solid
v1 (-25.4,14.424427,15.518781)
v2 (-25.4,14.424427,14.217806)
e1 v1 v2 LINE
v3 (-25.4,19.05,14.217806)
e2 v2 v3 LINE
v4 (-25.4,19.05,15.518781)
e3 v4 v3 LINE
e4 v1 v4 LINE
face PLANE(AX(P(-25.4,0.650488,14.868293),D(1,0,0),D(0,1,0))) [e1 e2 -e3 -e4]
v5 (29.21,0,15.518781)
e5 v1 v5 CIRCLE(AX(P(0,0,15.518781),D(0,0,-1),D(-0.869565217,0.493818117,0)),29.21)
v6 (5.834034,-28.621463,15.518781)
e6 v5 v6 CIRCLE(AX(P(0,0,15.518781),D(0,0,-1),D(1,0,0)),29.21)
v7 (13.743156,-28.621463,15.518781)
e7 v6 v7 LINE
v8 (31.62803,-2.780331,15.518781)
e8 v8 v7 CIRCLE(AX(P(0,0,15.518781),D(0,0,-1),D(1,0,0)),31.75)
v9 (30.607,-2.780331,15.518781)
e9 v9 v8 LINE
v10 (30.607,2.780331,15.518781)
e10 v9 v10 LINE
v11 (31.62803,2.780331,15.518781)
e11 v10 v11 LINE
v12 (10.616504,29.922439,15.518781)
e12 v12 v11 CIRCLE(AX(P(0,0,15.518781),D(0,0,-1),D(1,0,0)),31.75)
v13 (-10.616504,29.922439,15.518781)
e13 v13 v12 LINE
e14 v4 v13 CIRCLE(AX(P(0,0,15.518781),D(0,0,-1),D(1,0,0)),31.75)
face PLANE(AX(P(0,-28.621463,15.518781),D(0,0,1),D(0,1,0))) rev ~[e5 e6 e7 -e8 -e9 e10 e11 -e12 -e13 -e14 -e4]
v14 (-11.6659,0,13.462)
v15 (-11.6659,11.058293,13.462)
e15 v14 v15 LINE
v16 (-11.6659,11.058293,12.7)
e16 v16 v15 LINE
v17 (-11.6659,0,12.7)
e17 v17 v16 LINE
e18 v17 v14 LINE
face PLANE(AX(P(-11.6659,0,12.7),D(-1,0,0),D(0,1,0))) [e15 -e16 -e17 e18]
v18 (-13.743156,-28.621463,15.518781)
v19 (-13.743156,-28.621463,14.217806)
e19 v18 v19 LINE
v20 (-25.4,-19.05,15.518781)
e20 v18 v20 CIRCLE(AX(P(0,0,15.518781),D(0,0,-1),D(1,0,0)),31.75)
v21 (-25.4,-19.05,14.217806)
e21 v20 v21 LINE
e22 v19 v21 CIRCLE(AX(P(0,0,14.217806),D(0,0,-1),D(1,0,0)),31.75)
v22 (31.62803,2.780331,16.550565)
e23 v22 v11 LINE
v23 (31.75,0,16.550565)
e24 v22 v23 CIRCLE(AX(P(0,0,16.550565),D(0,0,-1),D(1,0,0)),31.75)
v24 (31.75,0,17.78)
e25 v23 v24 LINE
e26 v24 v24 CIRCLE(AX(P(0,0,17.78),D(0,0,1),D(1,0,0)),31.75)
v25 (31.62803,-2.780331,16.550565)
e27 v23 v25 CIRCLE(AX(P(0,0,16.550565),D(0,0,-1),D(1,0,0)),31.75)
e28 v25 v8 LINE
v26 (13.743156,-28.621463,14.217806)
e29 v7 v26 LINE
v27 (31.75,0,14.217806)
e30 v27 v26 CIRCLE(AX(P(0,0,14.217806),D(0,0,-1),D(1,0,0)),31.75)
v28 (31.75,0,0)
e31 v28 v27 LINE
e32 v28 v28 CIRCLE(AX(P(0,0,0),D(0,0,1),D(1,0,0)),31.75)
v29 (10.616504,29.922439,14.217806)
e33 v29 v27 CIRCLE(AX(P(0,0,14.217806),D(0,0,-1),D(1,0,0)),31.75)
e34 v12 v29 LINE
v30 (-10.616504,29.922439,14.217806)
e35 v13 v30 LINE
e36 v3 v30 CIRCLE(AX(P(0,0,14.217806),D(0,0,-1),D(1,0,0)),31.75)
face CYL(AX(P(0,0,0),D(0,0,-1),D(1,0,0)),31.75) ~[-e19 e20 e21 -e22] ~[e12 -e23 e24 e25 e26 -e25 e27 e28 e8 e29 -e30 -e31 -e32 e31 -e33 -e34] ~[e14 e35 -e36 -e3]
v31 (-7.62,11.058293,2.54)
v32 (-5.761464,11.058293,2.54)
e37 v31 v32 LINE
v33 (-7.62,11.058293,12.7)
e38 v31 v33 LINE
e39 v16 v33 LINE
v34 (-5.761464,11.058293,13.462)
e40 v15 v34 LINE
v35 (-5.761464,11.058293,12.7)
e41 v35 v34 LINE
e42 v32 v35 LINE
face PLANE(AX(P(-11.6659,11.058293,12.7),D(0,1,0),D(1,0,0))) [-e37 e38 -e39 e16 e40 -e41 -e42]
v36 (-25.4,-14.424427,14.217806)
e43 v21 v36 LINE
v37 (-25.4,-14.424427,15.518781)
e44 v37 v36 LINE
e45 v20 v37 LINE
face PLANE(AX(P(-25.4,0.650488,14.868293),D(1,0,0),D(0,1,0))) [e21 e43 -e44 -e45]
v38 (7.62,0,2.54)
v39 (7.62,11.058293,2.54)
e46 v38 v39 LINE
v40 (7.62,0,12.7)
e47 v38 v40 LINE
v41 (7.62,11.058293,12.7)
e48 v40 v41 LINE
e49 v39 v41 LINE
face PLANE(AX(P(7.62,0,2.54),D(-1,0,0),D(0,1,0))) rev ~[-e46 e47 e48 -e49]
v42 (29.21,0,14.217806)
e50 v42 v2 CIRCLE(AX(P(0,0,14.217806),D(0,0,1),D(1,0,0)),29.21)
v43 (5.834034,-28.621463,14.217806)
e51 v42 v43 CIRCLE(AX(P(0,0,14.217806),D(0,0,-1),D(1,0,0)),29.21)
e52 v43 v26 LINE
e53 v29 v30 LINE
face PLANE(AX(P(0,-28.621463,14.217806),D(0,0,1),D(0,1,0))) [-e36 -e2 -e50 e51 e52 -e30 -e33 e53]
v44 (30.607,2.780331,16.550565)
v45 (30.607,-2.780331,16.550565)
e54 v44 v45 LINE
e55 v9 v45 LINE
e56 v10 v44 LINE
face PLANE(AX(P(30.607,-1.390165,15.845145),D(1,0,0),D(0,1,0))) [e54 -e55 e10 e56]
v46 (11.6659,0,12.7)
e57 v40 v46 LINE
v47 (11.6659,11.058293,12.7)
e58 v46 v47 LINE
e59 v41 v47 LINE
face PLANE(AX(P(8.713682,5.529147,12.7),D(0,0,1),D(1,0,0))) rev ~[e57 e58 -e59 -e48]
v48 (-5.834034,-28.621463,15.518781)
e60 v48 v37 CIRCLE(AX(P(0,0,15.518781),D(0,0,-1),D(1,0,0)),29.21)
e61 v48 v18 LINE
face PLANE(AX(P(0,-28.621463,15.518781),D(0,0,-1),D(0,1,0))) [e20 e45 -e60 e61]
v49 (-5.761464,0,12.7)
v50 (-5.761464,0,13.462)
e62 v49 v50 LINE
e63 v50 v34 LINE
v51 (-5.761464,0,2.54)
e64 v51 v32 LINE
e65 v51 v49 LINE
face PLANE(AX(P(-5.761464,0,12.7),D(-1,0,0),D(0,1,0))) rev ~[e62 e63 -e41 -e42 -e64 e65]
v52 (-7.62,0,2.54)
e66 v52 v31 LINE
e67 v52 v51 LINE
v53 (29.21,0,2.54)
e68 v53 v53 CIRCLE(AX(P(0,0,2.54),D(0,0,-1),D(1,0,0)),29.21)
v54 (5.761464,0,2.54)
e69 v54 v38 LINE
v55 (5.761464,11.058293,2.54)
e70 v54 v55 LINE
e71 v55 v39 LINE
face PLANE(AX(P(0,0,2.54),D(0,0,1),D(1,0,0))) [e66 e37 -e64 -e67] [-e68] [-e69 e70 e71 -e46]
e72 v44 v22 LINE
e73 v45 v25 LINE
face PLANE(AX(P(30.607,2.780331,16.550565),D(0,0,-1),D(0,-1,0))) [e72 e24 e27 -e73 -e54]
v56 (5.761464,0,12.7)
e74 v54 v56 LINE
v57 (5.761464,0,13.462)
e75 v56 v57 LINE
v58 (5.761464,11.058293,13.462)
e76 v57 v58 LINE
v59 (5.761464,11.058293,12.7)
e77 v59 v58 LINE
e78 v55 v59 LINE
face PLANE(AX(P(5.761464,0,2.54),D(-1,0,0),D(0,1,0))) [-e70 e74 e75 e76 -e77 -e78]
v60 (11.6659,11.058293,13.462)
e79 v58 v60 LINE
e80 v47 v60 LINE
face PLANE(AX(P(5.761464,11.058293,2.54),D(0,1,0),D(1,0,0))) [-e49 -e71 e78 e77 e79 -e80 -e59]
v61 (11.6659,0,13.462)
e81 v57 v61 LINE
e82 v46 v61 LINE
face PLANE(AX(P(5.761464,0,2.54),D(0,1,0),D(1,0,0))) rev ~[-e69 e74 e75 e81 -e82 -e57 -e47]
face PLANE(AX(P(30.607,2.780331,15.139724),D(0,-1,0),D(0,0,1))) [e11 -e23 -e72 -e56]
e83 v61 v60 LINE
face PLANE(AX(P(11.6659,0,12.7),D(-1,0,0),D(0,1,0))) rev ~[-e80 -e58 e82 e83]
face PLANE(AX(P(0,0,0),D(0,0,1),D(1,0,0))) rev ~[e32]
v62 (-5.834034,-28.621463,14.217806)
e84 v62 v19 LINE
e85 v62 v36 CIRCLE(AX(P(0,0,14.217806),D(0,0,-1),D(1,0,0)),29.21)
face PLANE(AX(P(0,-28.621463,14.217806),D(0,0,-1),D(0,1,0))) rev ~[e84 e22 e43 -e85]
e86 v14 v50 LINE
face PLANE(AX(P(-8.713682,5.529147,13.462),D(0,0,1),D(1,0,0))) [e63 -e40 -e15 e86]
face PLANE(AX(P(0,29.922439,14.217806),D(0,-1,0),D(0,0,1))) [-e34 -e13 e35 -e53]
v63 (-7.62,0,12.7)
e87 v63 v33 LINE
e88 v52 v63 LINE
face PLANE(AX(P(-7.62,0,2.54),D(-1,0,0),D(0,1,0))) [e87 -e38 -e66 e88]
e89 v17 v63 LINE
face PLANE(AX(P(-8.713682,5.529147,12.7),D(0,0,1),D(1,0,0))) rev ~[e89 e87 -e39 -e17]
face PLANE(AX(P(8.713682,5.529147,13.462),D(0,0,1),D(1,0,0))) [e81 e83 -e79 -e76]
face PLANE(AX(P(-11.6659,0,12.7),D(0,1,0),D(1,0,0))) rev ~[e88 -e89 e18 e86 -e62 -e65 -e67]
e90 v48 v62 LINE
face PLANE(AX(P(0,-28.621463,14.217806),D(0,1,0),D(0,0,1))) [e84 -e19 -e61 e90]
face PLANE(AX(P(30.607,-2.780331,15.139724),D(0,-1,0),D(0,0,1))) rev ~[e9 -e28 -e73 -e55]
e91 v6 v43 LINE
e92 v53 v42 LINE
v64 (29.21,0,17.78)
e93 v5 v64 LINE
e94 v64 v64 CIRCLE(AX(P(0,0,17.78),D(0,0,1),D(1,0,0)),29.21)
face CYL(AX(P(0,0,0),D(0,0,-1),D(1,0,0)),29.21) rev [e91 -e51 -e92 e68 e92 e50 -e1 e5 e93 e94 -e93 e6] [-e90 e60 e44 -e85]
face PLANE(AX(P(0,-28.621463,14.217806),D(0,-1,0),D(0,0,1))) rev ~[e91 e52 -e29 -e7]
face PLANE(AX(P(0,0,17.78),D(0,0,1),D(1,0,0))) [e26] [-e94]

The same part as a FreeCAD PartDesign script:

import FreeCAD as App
import Part
import Sketcher

V = App.Vector
Q = App.Units.Quantity


def faces_at(feature, points):
    """Names of the faces that lie closest to the given points."""
    faces = feature.Shape.Faces
    near = lambda p: min(range(len(faces)), key=lambda i: faces[i].distToShape(Part.Vertex(*p))[0])
    return sorted({f"Face{near(p) + 1}" for p in points})

doc = App.newDocument("Part")
body = doc.addObject("PartDesign::Body", "Body")

# Sketch on XY plane
sketch1 = doc.addObject("Sketcher::SketchObject", "Sketch")
body.addObject(sketch1)
sketch1.AttachmentSupport = (doc.XY_Plane, [""])
sketch1.MapMode = "FlatFace"
sketch1.addGeometry(Part.Circle(V(0, 0, 0), V(0, 0, 1), 31.75), False)
sketch1.addConstraint([
    Sketcher.Constraint("Coincident", 0, 3, -1, 1),
    Sketcher.Constraint("Diameter", 0, Q("2.5 in")),
])
pad1 = doc.addObject("PartDesign::Pad", "Pad")
body.addObject(pad1)
pad1.Profile = sketch1
pad1.Length = Q("0.7 in")
doc.recompute()

thickness = doc.addObject("PartDesign::Thickness", "Thickness")
body.addObject(thickness)
thickness.Base = (pad1, faces_at(pad1, [(0, 0, 17.78)]))
thickness.Value = Q("0.1 in")
thickness.Reversed = True
thickness.Join = "Arc"

# Sketch on XY plane
sketch2 = doc.addObject("Sketcher::SketchObject", "Sketch001")
body.addObject(sketch2)
sketch2.AttachmentSupport = (doc.XY_Plane, [""])
sketch2.MapMode = "FlatFace"
sketch2.AttachmentOffset = App.Placement(V(0, 0, 0.1 * 25.4), App.Rotation())
sketch2.addGeometry([
    Part.LineSegment(V(-7.62, 11.058293, 0), V(-7.62, 0, 0)),  # 0
    Part.LineSegment(V(-7.62, 0, 0), V(-5.761464, 0, 0)),  # 1
    Part.LineSegment(V(-5.761464, 0, 0), V(-5.761464, 11.058293, 0)),  # 2
    Part.LineSegment(V(-5.761464, 11.058293, 0), V(-7.62, 11.058293, 0)),  # 3
    Part.LineSegment(V(5.761464, 11.058293, 0), V(5.761464, 0, 0)),  # 4
    Part.LineSegment(V(5.761464, 0, 0), V(7.62, 0, 0)),  # 5
    Part.LineSegment(V(7.62, 0, 0), V(7.62, 11.058293, 0)),  # 6
    Part.LineSegment(V(7.62, 11.058293, 0), V(5.761464, 11.058293, 0)),  # 7
], False)
sketch2.addConstraint([
    Sketcher.Constraint("Coincident", 0, 2, 1, 1),
    Sketcher.Constraint("Coincident", 1, 2, 2, 1),
    Sketcher.Constraint("Coincident", 2, 2, 3, 1),
    Sketcher.Constraint("Coincident", 3, 2, 0, 1),
    Sketcher.Constraint("Coincident", 4, 2, 5, 1),
    Sketcher.Constraint("Coincident", 5, 2, 6, 1),
    Sketcher.Constraint("Coincident", 6, 2, 7, 1),
    Sketcher.Constraint("Coincident", 7, 2, 4, 1),
    Sketcher.Constraint("Vertical", 0),
    Sketcher.Constraint("Horizontal", 1),
    Sketcher.Constraint("Vertical", 2),
    Sketcher.Constraint("Horizontal", 3),
    Sketcher.Constraint("Vertical", 4),
    Sketcher.Constraint("Horizontal", 5),
    Sketcher.Constraint("Vertical", 6),
    Sketcher.Constraint("Horizontal", 7),
    Sketcher.Constraint("Symmetric", 1, 2, 4, 2, -1, 1),
    Sketcher.Constraint("Symmetric", 0, 2, 5, 2, -2),
    Sketcher.Constraint("Horizontal", 3, 2, 6, 2),
    Sketcher.Constraint("DistanceX", 0, 2, -1, 1, Q("0.3 in")),
    Sketcher.Constraint("DistanceX", 1, 1, 1, 2, 1.858536),
    Sketcher.Constraint("DistanceY", 0, 2, 0, 1, 11.058293),
])
pad2 = doc.addObject("PartDesign::Pad", "Pad001")
body.addObject(pad2)
pad2.Profile = sketch2
pad2.Length = Q("0.4 in")

# Sketch on XY plane
sketch3 = doc.addObject("Sketcher::SketchObject", "Sketch002")
body.addObject(sketch3)
sketch3.AttachmentSupport = (doc.XY_Plane, [""])
sketch3.MapMode = "FlatFace"
sketch3.AttachmentOffset = App.Placement(V(0, 0, 0.5 * 25.4), App.Rotation())
sketch3.addGeometry([
    Part.LineSegment(V(-11.6659, 11.058293, 0), V(-11.6659, 0, 0)),  # 0
    Part.LineSegment(V(-11.6659, 0, 0), V(-5.761464, 0, 0)),  # 1
    Part.LineSegment(V(-5.761464, 0, 0), V(-5.761464, 11.058293, 0)),  # 2
    Part.LineSegment(V(-5.761464, 11.058293, 0), V(-11.6659, 11.058293, 0)),  # 3
    Part.LineSegment(V(5.761464, 11.058293, 0), V(5.761464, 0, 0)),  # 4
    Part.LineSegment(V(5.761464, 0, 0), V(11.6659, 0, 0)),  # 5
    Part.LineSegment(V(11.6659, 0, 0), V(11.6659, 11.058293, 0)),  # 6
    Part.LineSegment(V(11.6659, 11.058293, 0), V(5.761464, 11.058293, 0)),  # 7
], False)
sketch3.addConstraint([
    Sketcher.Constraint("Coincident", 0, 2, 1, 1),
    Sketcher.Constraint("Coincident", 1, 2, 2, 1),
    Sketcher.Constraint("Coincident", 2, 2, 3, 1),
    Sketcher.Constraint("Coincident", 3, 2, 0, 1),
    Sketcher.Constraint("Coincident", 4, 2, 5, 1),
    Sketcher.Constraint("Coincident", 5, 2, 6, 1),
    Sketcher.Constraint("Coincident", 6, 2, 7, 1),
    Sketcher.Constraint("Coincident", 7, 2, 4, 1),
    Sketcher.Constraint("Vertical", 0),
    Sketcher.Constraint("Horizontal", 1),
    Sketcher.Constraint("Vertical", 2),
    Sketcher.Constraint("Horizontal", 3),
    Sketcher.Constraint("Vertical", 4),
    Sketcher.Constraint("Horizontal", 5),
    Sketcher.Constraint("Vertical", 6),
    Sketcher.Constraint("Horizontal", 7),
    Sketcher.Constraint("Symmetric", 1, 2, 4, 2, -1, 1),
    Sketcher.Constraint("Symmetric", 0, 2, 5, 2, -2),
    Sketcher.Constraint("Horizontal", 3, 2, 6, 2),
    Sketcher.Constraint("DistanceX", 0, 2, -1, 1, 11.6659),
    Sketcher.Constraint("DistanceX", 1, 1, 1, 2, 5.904437),
    Sketcher.Constraint("DistanceY", 0, 2, 0, 1, 11.058293),
])
pad3 = doc.addObject("PartDesign::Pad", "Pad002")
body.addObject(pad3)
pad3.Profile = sketch3
pad3.Length = Q("0.03 in")

# Sketch on YZ plane
sketch4 = doc.addObject("Sketcher::SketchObject", "Sketch003")
body.addObject(sketch4)
sketch4.AttachmentSupport = (doc.YZ_Plane, [""])
sketch4.MapMode = "FlatFace"
sketch4.addGeometry([
    Part.LineSegment(V(-28.621463, 15.518781, 0), V(-28.621463, 14.217806, 0)),
    Part.LineSegment(V(-28.621463, 14.217806, 0), V(29.922439, 14.217806, 0)),
    Part.LineSegment(V(29.922439, 14.217806, 0), V(29.922439, 15.518781, 0)),
    Part.LineSegment(V(29.922439, 15.518781, 0), V(-28.621463, 15.518781, 0)),
], False)
sketch4.addConstraint([
    Sketcher.Constraint("Coincident", 0, 2, 1, 1),
    Sketcher.Constraint("Coincident", 1, 2, 2, 1),
    Sketcher.Constraint("Coincident", 2, 2, 3, 1),
    Sketcher.Constraint("Coincident", 3, 2, 0, 1),
    Sketcher.Constraint("Vertical", 0),
    Sketcher.Constraint("Horizontal", 1),
    Sketcher.Constraint("Vertical", 2),
    Sketcher.Constraint("Horizontal", 3),
    Sketcher.Constraint("DistanceX", 1, 1, 1, 2, 58.543902),
    Sketcher.Constraint("DistanceY", 0, 2, 0, 1, 1.300975),
    Sketcher.Constraint("DistanceX", -1, 1, 1, 2, 29.922439),
    Sketcher.Constraint("DistanceY", -1, 1, 2, 2, 15.518781),
])
pocket1 = doc.addObject("PartDesign::Pocket", "Pocket")
body.addObject(pocket1)
pocket1.Profile = sketch4
pocket1.Type = "TwoLengths"
pocket1.Length = Q("1.71 in")
pocket1.Length2 = Q("1 in")
pocket1.Reversed = True

# Sketch on YZ plane
sketch5 = doc.addObject("Sketcher::SketchObject", "Sketch004")
body.addObject(sketch5)
sketch5.AttachmentSupport = (doc.YZ_Plane, [""])
sketch5.MapMode = "FlatFace"
sketch5.AttachmentOffset = App.Placement(V(0, 0, 1.205 * 25.4), App.Rotation())
sketch5.addGeometry([
    Part.LineSegment(V(-2.780331, 16.550565, 0), V(-2.780331, 15.139724, 0)),
    Part.LineSegment(V(-2.780331, 15.139724, 0), V(2.780331, 15.139724, 0)),
    Part.LineSegment(V(2.780331, 15.139724, 0), V(2.780331, 16.550565, 0)),
    Part.LineSegment(V(2.780331, 16.550565, 0), V(-2.780331, 16.550565, 0)),
], False)
sketch5.addConstraint([
    Sketcher.Constraint("Coincident", 0, 2, 1, 1),
    Sketcher.Constraint("Coincident", 1, 2, 2, 1),
    Sketcher.Constraint("Coincident", 2, 2, 3, 1),
    Sketcher.Constraint("Coincident", 3, 2, 0, 1),
    Sketcher.Constraint("Vertical", 0),
    Sketcher.Constraint("Horizontal", 1),
    Sketcher.Constraint("Vertical", 2),
    Sketcher.Constraint("Horizontal", 3),
    Sketcher.Constraint("DistanceX", 1, 1, 1, 2, 5.560662),
    Sketcher.Constraint("DistanceY", 0, 2, 0, 1, 1.410841),
    Sketcher.Constraint("DistanceX", 0, 2, -1, 1, 2.780331),
    Sketcher.Constraint("DistanceY", -1, 1, 0, 2, 15.139724),
])
pocket2 = doc.addObject("PartDesign::Pocket", "Pocket001")
body.addObject(pocket2)
pocket2.Profile = sketch5
pocket2.Length = Q("0.145 in")
pocket2.Reversed = True

doc.recompute()
